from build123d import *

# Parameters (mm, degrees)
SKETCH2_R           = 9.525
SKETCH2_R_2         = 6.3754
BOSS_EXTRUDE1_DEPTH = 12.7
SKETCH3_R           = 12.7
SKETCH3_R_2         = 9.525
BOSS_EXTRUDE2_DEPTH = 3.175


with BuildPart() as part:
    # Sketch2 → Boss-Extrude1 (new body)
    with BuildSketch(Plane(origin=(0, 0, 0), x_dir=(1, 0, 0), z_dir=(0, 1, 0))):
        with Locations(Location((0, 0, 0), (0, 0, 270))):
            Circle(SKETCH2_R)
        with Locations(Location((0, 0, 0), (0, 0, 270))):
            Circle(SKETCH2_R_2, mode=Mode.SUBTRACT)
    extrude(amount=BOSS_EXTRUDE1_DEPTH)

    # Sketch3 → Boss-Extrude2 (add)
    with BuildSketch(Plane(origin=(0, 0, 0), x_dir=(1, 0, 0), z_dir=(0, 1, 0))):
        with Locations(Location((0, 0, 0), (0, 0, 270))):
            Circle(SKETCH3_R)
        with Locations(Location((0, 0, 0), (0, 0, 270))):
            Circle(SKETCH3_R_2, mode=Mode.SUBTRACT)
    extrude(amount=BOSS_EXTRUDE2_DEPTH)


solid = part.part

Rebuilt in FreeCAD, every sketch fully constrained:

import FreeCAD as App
import Part
import Sketcher
Q = App.Units.Quantity

doc = App.newDocument("Part")
body = doc.addObject("PartDesign::Body", "Body")

sketch1 = body.newObject("Sketcher::SketchObject", "Sketch")
sketch1.AttachmentSupport = (doc.getObject("XZ_Plane"), [""])
sketch1.MapMode = "FlatFace"
sketch1.addGeometry([
    Part.Circle(App.Vector(0, 0, 0), App.Vector(0, 0, 1), 10),
    Part.Circle(App.Vector(0, 0, 0), App.Vector(0, 0, 1), 6),
], False)
sketch1.addConstraint([
    Sketcher.Constraint("Coincident", 0, 3, -1, 1),
    Sketcher.Constraint("Coincident", 1, 3, -1, 1),
    Sketcher.Constraint("Diameter", 0, Q("0.75 in")),
    Sketcher.Constraint("Diameter", 1, Q("0.502 in")),
])
pad1 = body.newObject("PartDesign::Pad", "Pad")
pad1.Profile = sketch1
pad1.Length = Q("0.5 in")
pad1.Reversed = True

sketch2 = body.newObject("Sketcher::SketchObject", "Sketch001")
sketch2.AttachmentSupport = (doc.getObject("XZ_Plane"), [""])
sketch2.MapMode = "FlatFace"
sketch2.addGeometry([
    Part.Circle(App.Vector(0, 0, 0), App.Vector(0, 0, 1), 13),
    Part.Circle(App.Vector(0, 0, 0), App.Vector(0, 0, 1), 10),
], False)
sketch2.addConstraint([
    Sketcher.Constraint("Coincident", 0, 3, -1, 1),
    Sketcher.Constraint("Coincident", 1, 3, -1, 1),
    Sketcher.Constraint("Diameter", 0, Q("1 in")),
    Sketcher.Constraint("Diameter", 1, Q("0.75 in")),
])
pad2 = body.newObject("PartDesign::Pad", "Pad001")
pad2.Profile = sketch2
pad2.Length = Q("0.125 in")
pad2.Reversed = True

doc.recompute()
